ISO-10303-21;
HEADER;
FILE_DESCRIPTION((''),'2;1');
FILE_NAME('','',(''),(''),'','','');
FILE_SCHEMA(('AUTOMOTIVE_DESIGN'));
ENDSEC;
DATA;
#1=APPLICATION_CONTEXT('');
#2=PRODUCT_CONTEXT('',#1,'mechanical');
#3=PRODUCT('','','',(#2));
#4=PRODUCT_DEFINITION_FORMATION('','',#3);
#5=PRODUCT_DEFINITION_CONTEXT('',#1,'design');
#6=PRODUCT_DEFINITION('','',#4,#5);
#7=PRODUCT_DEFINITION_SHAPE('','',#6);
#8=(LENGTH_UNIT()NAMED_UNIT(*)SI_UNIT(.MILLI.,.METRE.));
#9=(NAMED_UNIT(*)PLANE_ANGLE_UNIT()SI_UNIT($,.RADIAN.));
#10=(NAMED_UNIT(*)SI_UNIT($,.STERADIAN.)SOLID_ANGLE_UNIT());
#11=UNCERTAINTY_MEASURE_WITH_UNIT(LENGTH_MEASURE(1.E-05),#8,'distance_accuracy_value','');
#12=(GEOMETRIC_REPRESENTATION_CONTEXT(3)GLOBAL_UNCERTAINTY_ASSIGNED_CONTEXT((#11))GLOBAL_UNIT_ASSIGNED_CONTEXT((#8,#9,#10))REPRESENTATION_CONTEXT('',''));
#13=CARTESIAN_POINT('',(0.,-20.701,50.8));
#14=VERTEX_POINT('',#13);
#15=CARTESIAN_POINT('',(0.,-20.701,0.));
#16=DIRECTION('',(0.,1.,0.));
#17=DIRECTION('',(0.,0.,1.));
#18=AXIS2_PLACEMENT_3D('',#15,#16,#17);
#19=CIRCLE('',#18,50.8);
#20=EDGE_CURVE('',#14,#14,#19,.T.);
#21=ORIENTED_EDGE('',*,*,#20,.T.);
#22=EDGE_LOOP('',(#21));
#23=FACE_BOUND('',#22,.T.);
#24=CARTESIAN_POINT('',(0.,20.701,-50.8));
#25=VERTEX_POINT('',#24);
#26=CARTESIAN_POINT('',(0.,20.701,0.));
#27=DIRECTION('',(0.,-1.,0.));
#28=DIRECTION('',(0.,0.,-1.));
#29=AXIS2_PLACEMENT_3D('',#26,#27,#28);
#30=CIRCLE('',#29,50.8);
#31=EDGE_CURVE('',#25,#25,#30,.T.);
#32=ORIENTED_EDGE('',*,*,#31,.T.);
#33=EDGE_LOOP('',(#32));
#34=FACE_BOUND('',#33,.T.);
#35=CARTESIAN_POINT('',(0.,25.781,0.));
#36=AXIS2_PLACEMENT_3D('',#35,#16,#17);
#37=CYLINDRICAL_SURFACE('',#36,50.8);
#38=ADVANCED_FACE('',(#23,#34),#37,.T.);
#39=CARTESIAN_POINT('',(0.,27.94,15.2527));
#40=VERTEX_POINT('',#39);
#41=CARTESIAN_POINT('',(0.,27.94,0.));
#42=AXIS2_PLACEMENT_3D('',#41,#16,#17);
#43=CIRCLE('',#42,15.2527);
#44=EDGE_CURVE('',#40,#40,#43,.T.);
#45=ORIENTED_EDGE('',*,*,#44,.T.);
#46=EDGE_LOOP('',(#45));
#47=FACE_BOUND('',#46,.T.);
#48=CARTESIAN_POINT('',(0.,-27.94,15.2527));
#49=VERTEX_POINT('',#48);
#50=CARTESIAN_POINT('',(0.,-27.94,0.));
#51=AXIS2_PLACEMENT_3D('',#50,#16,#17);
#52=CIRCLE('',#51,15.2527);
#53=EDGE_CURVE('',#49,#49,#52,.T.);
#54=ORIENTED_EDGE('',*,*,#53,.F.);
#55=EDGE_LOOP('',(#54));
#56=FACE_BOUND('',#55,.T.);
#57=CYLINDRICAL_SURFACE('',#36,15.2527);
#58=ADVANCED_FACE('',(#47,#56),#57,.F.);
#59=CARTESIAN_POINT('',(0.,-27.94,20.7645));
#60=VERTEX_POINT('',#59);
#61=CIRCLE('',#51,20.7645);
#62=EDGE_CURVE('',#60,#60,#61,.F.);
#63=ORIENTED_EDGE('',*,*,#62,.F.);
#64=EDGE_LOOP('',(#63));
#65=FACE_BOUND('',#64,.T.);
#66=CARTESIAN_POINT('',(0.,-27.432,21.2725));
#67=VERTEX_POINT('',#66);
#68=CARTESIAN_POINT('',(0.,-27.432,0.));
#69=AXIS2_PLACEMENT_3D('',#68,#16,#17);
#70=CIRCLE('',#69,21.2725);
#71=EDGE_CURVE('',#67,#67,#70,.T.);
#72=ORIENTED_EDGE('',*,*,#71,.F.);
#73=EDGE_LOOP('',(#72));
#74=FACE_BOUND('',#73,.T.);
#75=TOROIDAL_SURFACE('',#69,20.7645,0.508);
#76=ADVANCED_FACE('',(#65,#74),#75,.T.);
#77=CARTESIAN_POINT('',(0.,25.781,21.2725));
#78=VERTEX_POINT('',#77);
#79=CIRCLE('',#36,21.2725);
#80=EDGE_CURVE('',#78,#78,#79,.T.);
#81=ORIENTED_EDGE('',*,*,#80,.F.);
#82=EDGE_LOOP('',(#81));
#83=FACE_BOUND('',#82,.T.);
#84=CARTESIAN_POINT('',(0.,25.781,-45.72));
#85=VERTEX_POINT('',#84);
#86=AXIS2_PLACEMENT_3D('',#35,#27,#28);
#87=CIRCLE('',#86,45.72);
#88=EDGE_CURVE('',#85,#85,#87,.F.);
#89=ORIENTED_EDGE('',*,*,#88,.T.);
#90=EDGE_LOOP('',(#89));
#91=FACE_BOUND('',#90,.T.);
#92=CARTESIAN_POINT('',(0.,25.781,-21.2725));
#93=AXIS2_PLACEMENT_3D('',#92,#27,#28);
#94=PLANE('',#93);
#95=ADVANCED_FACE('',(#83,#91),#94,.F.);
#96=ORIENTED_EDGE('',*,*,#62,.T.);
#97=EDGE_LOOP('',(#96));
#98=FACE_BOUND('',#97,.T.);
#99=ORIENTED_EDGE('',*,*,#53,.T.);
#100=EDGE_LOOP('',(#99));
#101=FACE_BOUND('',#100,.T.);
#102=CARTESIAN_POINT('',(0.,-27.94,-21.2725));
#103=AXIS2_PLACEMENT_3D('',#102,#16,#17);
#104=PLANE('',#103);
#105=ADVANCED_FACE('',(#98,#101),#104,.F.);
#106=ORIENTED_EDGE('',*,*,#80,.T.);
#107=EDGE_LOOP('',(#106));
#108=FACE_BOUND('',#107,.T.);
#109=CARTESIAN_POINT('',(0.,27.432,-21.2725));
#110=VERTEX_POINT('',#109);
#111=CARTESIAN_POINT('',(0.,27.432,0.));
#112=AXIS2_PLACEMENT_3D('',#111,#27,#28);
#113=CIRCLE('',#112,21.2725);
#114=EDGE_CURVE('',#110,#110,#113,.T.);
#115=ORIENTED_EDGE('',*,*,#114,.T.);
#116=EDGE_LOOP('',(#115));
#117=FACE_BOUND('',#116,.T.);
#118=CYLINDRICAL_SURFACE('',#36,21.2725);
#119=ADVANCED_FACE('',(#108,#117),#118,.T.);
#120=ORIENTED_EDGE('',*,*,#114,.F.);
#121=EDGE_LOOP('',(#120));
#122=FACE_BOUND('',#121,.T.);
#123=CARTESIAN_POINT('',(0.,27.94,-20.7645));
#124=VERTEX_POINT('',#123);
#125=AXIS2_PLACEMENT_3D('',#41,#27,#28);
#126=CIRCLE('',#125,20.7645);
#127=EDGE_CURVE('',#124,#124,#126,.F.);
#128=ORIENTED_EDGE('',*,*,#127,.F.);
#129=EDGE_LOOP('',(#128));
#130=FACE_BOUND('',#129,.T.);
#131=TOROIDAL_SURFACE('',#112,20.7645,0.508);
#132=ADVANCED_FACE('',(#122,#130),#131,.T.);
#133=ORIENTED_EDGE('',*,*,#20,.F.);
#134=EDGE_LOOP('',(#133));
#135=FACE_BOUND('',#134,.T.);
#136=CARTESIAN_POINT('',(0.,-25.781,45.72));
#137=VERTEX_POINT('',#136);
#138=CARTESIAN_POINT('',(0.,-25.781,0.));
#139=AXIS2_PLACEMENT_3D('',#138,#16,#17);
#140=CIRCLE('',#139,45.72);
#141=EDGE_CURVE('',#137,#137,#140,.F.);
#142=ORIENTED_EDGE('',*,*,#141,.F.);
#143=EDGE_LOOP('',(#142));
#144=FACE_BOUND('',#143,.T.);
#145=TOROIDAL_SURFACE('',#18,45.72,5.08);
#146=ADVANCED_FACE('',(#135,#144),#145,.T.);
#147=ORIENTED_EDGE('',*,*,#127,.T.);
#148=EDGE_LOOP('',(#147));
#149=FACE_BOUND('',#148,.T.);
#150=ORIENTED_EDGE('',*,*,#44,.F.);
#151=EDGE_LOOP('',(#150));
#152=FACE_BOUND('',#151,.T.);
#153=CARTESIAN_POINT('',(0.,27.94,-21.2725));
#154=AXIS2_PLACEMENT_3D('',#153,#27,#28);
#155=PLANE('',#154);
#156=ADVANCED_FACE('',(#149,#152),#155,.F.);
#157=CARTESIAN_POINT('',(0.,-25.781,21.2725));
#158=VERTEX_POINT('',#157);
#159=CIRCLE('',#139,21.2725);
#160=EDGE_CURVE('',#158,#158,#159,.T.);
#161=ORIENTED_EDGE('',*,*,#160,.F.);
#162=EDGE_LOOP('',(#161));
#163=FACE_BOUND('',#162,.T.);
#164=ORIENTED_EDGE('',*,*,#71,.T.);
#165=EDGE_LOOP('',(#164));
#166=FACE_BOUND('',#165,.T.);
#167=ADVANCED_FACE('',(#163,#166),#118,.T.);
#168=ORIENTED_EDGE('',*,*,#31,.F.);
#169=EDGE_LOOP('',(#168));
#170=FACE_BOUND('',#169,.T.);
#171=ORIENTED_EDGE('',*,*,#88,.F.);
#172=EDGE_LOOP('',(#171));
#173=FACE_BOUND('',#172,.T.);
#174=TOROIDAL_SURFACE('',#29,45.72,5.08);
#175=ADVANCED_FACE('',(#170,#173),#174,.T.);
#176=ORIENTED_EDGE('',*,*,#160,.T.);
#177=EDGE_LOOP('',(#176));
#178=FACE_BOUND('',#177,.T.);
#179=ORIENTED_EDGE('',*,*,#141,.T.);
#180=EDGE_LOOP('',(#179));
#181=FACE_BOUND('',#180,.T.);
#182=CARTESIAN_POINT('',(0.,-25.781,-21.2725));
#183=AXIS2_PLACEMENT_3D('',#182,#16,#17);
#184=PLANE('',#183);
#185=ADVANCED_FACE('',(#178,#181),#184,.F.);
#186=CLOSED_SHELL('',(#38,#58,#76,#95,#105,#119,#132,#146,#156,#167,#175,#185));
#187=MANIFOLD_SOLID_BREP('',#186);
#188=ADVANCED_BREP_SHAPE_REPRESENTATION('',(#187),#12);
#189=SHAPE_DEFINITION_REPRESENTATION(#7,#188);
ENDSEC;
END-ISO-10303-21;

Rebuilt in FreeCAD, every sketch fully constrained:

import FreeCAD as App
import Part
import Sketcher
Q = App.Units.Quantity


def edges_at(feature, points):
    """Names of the edges that pass closest to the given points."""
    edges = feature.Shape.Edges
    near = lambda p: min(range(len(edges)), key=lambda i: edges[i].distToShape(Part.Vertex(*p))[0])
    return sorted({f"Edge{near(p) + 1}" for p in points})

doc = App.newDocument("Part")
params = doc.addObject("Spreadsheet::Sheet", "Params")
for row, (alias, value) in enumerate([
    ("sketch1_width", "2.2 in"),
    ("sketch1_width2", "2.03 in"),
    ("sketch1_height", "0.237 in"),
    ("revolution_angle", "360 deg"),
    ("fillet_radius", "0.2 in"),
    ("fillet2_radius", "0.02 in"),
], start=1):
    params.set(f"A{row}", alias)
    params.set(f"B{row}", "=" + value)
    params.setAlias(f"B{row}", alias)

body = doc.addObject("PartDesign::Body", "Body")

sketch1 = body.newObject("Sketcher::SketchObject", "Sketch")
sketch1.AttachmentSupport = (doc.getObject("YZ_Plane"), [""])
sketch1.MapMode = "FlatFace"
sketch1.addGeometry([
    Part.LineSegment(App.Vector(-27.9, -21.3, 0), App.Vector(-25.8, -21.3, 0)),
    Part.LineSegment(App.Vector(-25.8, -21.3, 0), App.Vector(-25.8, -50.8, 0)),
    Part.LineSegment(App.Vector(-25.8, -50.8, 0), App.Vector(25.8, -50.8, 0)),
    Part.LineSegment(App.Vector(25.8, -50.8, 0), App.Vector(25.8, -21.3, 0)),
    Part.LineSegment(App.Vector(25.8, -21.3, 0), App.Vector(27.9, -21.3, 0)),
    Part.LineSegment(App.Vector(27.9, -21.3, 0), App.Vector(27.9, -15.3, 0)),
    Part.LineSegment(App.Vector(27.9, -15.3, 0), App.Vector(-27.9, -15.3, 0)),
    Part.LineSegment(App.Vector(-27.9, -15.3, 0), App.Vector(-27.9, -21.3, 0)),
], False)
sketch1.addConstraint([
    Sketcher.Constraint("Coincident", 0, 2, 1, 1),
    Sketcher.Constraint("Coincident", 1, 2, 2, 1),
    Sketcher.Constraint("Coincident", 2, 2, 3, 1),
    Sketcher.Constraint("Coincident", 3, 2, 4, 1),
    Sketcher.Constraint("Coincident", 4, 2, 5, 1),
    Sketcher.Constraint("Coincident", 5, 2, 6, 1),
    Sketcher.Constraint("Coincident", 6, 2, 7, 1),
    Sketcher.Constraint("Coincident", 7, 2, 0, 1),
    Sketcher.Constraint("Horizontal", 0),
    Sketcher.Constraint("Vertical", 1),
    Sketcher.Constraint("Horizontal", 2),
    Sketcher.Constraint("Vertical", 3),
    Sketcher.Constraint("Horizontal", 4),
    Sketcher.Constraint("Vertical", 5),
    Sketcher.Constraint("Horizontal", 6),
    Sketcher.Constraint("Vertical", 7),
    Sketcher.Constraint("Symmetric", 0, 2, 3, 2, -2),
    Sketcher.Constraint("Equal", 0, 4),
    Sketcher.Constraint("DistanceX", 6, 2, 6, 1, Q("2.2 in")),
    Sketcher.Constraint("DistanceY", 1, 2, -1, 1, Q("2 in")),
    Sketcher.Constraint("DistanceX", 2, 1, 2, 2, Q("2.03 in")),
    Sketcher.Constraint("DistanceY", 5, 1, 5, 2, Q("0.237 in")),
    Sketcher.Constraint("DistanceY", 1, 2, 1, 1, Q("1.1625 in")),
])
sketch1.setExpression("Constraints[18]", "Params.sketch1_width")
sketch1.setExpression("Constraints[20]", "Params.sketch1_width2")
sketch1.setExpression("Constraints[21]", "Params.sketch1_height")
revolution = body.newObject("PartDesign::Revolution", "Revolution")
revolution.Profile = sketch1
revolution.ReferenceAxis = (sketch1, ["H_Axis"])
revolution.setExpression("Angle", "Params.revolution_angle")
doc.recompute()

fillet = body.newObject("PartDesign::Fillet", "Fillet")
fillet.Base = (revolution, edges_at(revolution, [(0, -25.781, -50.8), (0, 25.781, -50.8)]))
fillet.setExpression("Radius", "Params.fillet_radius")
doc.recompute()

fillet2 = body.newObject("PartDesign::Fillet", "Fillet001")
fillet2.Base = (fillet, edges_at(fillet, [(0, -27.94, -21.273), (0, 27.94, -21.273)]))
fillet2.setExpression("Radius", "Params.fillet2_radius")

doc.recompute()
